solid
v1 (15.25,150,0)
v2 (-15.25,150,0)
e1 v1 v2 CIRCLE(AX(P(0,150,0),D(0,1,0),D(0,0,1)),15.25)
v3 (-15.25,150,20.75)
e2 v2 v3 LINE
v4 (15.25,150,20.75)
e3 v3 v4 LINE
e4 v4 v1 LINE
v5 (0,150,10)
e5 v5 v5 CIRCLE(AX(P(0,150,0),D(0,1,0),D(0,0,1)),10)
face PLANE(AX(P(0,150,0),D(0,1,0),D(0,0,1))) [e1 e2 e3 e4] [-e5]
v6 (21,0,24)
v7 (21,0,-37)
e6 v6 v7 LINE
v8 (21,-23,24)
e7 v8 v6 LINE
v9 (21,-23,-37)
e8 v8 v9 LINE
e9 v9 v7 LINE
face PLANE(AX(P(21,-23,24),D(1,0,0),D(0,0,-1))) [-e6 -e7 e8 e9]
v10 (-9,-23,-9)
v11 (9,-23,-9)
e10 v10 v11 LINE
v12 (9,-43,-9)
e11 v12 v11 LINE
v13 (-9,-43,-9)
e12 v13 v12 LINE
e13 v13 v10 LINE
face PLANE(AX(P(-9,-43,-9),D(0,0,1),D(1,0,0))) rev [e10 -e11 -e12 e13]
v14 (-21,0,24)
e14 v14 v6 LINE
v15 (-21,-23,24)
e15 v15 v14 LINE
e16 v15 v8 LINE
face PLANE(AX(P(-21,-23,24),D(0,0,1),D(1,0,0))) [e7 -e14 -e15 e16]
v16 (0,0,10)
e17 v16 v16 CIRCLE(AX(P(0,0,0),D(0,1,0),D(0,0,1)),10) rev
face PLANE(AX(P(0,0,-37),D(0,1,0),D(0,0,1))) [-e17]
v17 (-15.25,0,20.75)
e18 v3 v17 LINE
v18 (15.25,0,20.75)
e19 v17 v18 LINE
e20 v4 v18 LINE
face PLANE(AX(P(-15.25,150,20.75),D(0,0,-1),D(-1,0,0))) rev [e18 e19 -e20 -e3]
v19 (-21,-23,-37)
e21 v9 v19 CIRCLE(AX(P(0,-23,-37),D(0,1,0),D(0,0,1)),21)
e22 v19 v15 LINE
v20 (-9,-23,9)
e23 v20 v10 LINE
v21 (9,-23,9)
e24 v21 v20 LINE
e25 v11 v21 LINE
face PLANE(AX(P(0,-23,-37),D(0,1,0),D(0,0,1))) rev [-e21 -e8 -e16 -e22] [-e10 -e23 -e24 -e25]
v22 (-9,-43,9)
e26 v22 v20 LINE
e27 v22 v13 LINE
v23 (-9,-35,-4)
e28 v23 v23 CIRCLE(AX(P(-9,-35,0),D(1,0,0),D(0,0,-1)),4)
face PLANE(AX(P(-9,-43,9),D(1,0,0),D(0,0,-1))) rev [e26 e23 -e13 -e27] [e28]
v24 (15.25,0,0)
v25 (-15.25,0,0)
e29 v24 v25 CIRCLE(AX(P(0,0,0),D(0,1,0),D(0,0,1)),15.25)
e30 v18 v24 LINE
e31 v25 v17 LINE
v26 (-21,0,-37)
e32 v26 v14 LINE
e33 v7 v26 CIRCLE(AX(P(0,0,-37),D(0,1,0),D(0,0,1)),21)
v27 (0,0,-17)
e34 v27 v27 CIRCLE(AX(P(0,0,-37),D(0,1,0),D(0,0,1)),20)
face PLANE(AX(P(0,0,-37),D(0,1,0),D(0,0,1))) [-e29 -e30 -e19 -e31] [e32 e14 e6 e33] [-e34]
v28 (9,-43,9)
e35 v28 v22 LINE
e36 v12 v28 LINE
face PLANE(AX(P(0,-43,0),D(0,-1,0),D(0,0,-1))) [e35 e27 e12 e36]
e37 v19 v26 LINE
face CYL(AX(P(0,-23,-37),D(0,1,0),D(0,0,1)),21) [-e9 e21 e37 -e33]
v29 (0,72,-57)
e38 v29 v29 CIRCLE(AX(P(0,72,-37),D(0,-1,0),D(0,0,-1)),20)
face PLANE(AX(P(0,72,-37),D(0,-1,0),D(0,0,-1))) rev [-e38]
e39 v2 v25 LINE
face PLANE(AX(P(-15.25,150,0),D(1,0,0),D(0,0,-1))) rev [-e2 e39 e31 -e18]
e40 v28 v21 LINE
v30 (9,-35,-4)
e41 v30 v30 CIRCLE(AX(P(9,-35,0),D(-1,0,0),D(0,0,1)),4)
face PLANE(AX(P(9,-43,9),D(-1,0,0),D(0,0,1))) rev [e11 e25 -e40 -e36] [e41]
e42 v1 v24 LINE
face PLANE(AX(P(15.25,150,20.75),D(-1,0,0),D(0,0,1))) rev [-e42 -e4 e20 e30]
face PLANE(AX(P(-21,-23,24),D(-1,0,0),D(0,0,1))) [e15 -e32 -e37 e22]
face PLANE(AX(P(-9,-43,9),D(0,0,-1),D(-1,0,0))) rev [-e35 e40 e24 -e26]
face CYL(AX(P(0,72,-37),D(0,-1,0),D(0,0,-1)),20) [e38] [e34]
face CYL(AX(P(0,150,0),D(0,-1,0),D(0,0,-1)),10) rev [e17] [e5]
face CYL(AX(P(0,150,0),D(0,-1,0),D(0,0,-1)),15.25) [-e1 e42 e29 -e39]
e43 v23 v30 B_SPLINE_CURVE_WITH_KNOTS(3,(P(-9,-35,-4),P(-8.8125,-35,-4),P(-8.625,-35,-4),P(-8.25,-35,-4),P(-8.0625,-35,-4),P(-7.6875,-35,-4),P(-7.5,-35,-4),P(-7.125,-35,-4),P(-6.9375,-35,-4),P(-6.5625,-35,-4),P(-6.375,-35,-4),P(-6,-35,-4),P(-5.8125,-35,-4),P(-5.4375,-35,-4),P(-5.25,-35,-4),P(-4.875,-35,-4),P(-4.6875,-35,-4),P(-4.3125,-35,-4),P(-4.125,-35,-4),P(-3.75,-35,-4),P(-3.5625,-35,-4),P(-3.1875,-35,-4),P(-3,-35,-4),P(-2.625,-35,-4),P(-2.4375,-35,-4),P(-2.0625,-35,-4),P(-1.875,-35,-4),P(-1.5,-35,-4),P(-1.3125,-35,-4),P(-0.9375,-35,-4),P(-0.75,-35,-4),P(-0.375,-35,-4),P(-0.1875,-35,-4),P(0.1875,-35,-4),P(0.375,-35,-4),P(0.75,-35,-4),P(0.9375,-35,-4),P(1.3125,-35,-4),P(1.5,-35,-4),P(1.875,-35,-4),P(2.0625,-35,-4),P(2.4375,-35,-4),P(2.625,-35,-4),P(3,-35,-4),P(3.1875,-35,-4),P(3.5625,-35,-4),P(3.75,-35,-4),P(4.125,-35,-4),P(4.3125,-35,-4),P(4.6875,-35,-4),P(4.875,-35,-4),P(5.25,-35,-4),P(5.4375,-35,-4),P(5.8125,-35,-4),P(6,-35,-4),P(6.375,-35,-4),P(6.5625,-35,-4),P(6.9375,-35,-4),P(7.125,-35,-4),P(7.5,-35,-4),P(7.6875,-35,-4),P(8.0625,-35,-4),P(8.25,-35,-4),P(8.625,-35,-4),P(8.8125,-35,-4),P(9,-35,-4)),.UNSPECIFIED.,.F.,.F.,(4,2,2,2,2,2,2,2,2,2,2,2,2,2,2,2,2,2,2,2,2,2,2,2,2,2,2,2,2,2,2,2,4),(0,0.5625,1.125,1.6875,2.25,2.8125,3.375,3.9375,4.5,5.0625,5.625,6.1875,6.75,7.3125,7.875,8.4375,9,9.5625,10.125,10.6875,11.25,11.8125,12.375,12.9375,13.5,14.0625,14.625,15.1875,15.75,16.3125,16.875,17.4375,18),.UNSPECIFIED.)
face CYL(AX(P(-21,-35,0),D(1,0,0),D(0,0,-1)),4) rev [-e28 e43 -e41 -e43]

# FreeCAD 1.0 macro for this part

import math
import FreeCAD as App
import Part
import Sketcher
Q = App.Units.Quantity

doc = App.newDocument("Part")
body = doc.addObject("PartDesign::Body", "Body")

sketch1 = doc.addObject("Sketcher::SketchObject", "Sketch")
body.addObject(sketch1)
sketch1.AttachmentSupport = (doc.XZ_Plane, [""])
sketch1.MapMode = "FlatFace"
sketch1.addGeometry([
    Part.LineSegment(App.Vector(-21, 24, 0), App.Vector(21, 24, 0)),
    Part.LineSegment(App.Vector(21, 24, 0), App.Vector(21, -37, 0)),
    Part.ArcOfCircle(Part.Circle(App.Vector(0, -37, 0), App.Vector(0, 0, 1), 21), math.radians(180), math.radians(360)),
    Part.LineSegment(App.Vector(-21, -37, 0), App.Vector(-21, 24, 0)),
], False)
sketch1.addConstraint([
    Sketcher.Constraint("Coincident", 0, 2, 1, 1),
    Sketcher.Constraint("Tangent", 1, 2, 2, 2),
    Sketcher.Constraint("Tangent", 2, 1, 3, 1),
    Sketcher.Constraint("Coincident", 3, 2, 0, 1),
    Sketcher.Constraint("Horizontal", 0),
    Sketcher.Constraint("Vertical", 1),
    Sketcher.Constraint("Vertical", 3),
    Sketcher.Constraint("PointOnObject", 2, 3, -2),
    Sketcher.Constraint("Radius", 2, Q("21 mm")),
    Sketcher.Constraint("DistanceY", 1, 2, 1, 1, Q("61 mm")),
    Sketcher.Constraint("DistanceY", 2, 3, -1, 1, Q("37 mm")),
])
pad1 = doc.addObject("PartDesign::Pad", "Pad")
body.addObject(pad1)
pad1.Profile = sketch1
pad1.Length = 23

sketch2 = doc.addObject("Sketcher::SketchObject", "Sketch001")
body.addObject(sketch2)
sketch2.AttachmentSupport = (doc.XZ_Plane, [""])
sketch2.MapMode = "FlatFace"
sketch2.AttachmentOffset = App.Placement(App.Vector(0, 0, 23), App.Rotation())
sketch2.addGeometry([
    Part.LineSegment(App.Vector(-9, 9, 0), App.Vector(-9, -9, 0)),
    Part.LineSegment(App.Vector(-9, -9, 0), App.Vector(9, -9, 0)),
    Part.LineSegment(App.Vector(9, -9, 0), App.Vector(9, 9, 0)),
    Part.LineSegment(App.Vector(9, 9, 0), App.Vector(-9, 9, 0)),
], False)
sketch2.addConstraint([
    Sketcher.Constraint("Coincident", 0, 2, 1, 1),
    Sketcher.Constraint("Coincident", 1, 2, 2, 1),
    Sketcher.Constraint("Coincident", 2, 2, 3, 1),
    Sketcher.Constraint("Coincident", 3, 2, 0, 1),
    Sketcher.Constraint("Vertical", 0),
    Sketcher.Constraint("Horizontal", 1),
    Sketcher.Constraint("Vertical", 2),
    Sketcher.Constraint("Horizontal", 3),
    Sketcher.Constraint("Symmetric", 0, 2, 2, 2, -1, 1),
    Sketcher.Constraint("Equal", 3, 0),
    Sketcher.Constraint("DistanceX", 1, 1, 1, 2, Q("18 mm")),
])
pad2 = doc.addObject("PartDesign::Pad", "Pad001")
body.addObject(pad2)
pad2.Profile = sketch2
pad2.Length = 20

sketch3 = doc.addObject("Sketcher::SketchObject", "Sketch002")
body.addObject(sketch3)
sketch3.AttachmentSupport = (doc.YZ_Plane, [""])
sketch3.MapMode = "FlatFace"
sketch3.addGeometry(Part.Circle(App.Vector(-35, 0, 0), App.Vector(0, 0, 1), 4), False)
sketch3.addConstraint([
    Sketcher.Constraint("PointOnObject", 0, 3, -1),
    Sketcher.Constraint("Diameter", 0, Q("8 mm")),
    Sketcher.Constraint("DistanceX", 0, 3, -1, 1, Q("35 mm")),
])
pocket1 = doc.addObject("PartDesign::Pocket", "Pocket")
body.addObject(pocket1)
pocket1.Profile = sketch3
pocket1.Type = "ThroughAll"
pocket1.Midplane = True

sketch4 = doc.addObject("Sketcher::SketchObject", "Sketch003")
body.addObject(sketch4)
sketch4.AttachmentSupport = (doc.XZ_Plane, [""])
sketch4.MapMode = "FlatFace"
sketch4.AttachmentOffset = App.Placement(App.Vector(0, 0, 23), App.Rotation())
sketch4.addGeometry(Part.Circle(App.Vector(0, -37, 0), App.Vector(0, 0, 1), 20), False)
sketch4.addConstraint([
    Sketcher.Constraint("PointOnObject", 0, 3, -2),
    Sketcher.Constraint("Diameter", 0, Q("40 mm")),
    Sketcher.Constraint("DistanceY", 0, 3, -1, 1, Q("37 mm")),
])
pad3 = doc.addObject("PartDesign::Pad", "Pad002")
body.addObject(pad3)
pad3.Profile = sketch4
pad3.Length = 95
pad3.Reversed = True

sketch5 = doc.addObject("Sketcher::SketchObject", "Sketch004")
body.addObject(sketch5)
sketch5.AttachmentSupport = (doc.XZ_Plane, [""])
sketch5.MapMode = "FlatFace"
sketch5.addGeometry([
    Part.LineSegment(App.Vector(-15, 0, 0), App.Vector(-15, 21, 0)),
    Part.LineSegment(App.Vector(-15, 21, 0), App.Vector(15, 21, 0)),
    Part.LineSegment(App.Vector(15, 21, 0), App.Vector(15, 0, 0)),
    Part.ArcOfCircle(Part.Circle(App.Vector(0, 0, 0), App.Vector(0, 0, 1), 15), math.radians(180), math.radians(360)),
    Part.Circle(App.Vector(0, 0, 0), App.Vector(0, 0, 1), 10),
], False)
sketch5.addConstraint([
    Sketcher.Constraint("Coincident", 0, 2, 1, 1),
    Sketcher.Constraint("Coincident", 1, 2, 2, 1),
    Sketcher.Constraint("Tangent", 2, 2, 3, 2),
    Sketcher.Constraint("Tangent", 3, 1, 0, 1),
    Sketcher.Constraint("Vertical", 0),
    Sketcher.Constraint("Horizontal", 1),
    Sketcher.Constraint("Vertical", 2),
    Sketcher.Constraint("Coincident", 3, 3, -1, 1),
    Sketcher.Constraint("Coincident", 4, 3, -1, 1),
    Sketcher.Constraint("Diameter", 4, Q("20 mm")),
    Sketcher.Constraint("Radius", 3, Q("15.25 mm")),
    Sketcher.Constraint("DistanceY", 0, 1, 0, 2, Q("20.75 mm")),
])
pad4 = doc.addObject("PartDesign::Pad", "Pad003")
body.addObject(pad4)
pad4.Profile = sketch5
pad4.Length = 150
pad4.Reversed = True

doc.recompute()
